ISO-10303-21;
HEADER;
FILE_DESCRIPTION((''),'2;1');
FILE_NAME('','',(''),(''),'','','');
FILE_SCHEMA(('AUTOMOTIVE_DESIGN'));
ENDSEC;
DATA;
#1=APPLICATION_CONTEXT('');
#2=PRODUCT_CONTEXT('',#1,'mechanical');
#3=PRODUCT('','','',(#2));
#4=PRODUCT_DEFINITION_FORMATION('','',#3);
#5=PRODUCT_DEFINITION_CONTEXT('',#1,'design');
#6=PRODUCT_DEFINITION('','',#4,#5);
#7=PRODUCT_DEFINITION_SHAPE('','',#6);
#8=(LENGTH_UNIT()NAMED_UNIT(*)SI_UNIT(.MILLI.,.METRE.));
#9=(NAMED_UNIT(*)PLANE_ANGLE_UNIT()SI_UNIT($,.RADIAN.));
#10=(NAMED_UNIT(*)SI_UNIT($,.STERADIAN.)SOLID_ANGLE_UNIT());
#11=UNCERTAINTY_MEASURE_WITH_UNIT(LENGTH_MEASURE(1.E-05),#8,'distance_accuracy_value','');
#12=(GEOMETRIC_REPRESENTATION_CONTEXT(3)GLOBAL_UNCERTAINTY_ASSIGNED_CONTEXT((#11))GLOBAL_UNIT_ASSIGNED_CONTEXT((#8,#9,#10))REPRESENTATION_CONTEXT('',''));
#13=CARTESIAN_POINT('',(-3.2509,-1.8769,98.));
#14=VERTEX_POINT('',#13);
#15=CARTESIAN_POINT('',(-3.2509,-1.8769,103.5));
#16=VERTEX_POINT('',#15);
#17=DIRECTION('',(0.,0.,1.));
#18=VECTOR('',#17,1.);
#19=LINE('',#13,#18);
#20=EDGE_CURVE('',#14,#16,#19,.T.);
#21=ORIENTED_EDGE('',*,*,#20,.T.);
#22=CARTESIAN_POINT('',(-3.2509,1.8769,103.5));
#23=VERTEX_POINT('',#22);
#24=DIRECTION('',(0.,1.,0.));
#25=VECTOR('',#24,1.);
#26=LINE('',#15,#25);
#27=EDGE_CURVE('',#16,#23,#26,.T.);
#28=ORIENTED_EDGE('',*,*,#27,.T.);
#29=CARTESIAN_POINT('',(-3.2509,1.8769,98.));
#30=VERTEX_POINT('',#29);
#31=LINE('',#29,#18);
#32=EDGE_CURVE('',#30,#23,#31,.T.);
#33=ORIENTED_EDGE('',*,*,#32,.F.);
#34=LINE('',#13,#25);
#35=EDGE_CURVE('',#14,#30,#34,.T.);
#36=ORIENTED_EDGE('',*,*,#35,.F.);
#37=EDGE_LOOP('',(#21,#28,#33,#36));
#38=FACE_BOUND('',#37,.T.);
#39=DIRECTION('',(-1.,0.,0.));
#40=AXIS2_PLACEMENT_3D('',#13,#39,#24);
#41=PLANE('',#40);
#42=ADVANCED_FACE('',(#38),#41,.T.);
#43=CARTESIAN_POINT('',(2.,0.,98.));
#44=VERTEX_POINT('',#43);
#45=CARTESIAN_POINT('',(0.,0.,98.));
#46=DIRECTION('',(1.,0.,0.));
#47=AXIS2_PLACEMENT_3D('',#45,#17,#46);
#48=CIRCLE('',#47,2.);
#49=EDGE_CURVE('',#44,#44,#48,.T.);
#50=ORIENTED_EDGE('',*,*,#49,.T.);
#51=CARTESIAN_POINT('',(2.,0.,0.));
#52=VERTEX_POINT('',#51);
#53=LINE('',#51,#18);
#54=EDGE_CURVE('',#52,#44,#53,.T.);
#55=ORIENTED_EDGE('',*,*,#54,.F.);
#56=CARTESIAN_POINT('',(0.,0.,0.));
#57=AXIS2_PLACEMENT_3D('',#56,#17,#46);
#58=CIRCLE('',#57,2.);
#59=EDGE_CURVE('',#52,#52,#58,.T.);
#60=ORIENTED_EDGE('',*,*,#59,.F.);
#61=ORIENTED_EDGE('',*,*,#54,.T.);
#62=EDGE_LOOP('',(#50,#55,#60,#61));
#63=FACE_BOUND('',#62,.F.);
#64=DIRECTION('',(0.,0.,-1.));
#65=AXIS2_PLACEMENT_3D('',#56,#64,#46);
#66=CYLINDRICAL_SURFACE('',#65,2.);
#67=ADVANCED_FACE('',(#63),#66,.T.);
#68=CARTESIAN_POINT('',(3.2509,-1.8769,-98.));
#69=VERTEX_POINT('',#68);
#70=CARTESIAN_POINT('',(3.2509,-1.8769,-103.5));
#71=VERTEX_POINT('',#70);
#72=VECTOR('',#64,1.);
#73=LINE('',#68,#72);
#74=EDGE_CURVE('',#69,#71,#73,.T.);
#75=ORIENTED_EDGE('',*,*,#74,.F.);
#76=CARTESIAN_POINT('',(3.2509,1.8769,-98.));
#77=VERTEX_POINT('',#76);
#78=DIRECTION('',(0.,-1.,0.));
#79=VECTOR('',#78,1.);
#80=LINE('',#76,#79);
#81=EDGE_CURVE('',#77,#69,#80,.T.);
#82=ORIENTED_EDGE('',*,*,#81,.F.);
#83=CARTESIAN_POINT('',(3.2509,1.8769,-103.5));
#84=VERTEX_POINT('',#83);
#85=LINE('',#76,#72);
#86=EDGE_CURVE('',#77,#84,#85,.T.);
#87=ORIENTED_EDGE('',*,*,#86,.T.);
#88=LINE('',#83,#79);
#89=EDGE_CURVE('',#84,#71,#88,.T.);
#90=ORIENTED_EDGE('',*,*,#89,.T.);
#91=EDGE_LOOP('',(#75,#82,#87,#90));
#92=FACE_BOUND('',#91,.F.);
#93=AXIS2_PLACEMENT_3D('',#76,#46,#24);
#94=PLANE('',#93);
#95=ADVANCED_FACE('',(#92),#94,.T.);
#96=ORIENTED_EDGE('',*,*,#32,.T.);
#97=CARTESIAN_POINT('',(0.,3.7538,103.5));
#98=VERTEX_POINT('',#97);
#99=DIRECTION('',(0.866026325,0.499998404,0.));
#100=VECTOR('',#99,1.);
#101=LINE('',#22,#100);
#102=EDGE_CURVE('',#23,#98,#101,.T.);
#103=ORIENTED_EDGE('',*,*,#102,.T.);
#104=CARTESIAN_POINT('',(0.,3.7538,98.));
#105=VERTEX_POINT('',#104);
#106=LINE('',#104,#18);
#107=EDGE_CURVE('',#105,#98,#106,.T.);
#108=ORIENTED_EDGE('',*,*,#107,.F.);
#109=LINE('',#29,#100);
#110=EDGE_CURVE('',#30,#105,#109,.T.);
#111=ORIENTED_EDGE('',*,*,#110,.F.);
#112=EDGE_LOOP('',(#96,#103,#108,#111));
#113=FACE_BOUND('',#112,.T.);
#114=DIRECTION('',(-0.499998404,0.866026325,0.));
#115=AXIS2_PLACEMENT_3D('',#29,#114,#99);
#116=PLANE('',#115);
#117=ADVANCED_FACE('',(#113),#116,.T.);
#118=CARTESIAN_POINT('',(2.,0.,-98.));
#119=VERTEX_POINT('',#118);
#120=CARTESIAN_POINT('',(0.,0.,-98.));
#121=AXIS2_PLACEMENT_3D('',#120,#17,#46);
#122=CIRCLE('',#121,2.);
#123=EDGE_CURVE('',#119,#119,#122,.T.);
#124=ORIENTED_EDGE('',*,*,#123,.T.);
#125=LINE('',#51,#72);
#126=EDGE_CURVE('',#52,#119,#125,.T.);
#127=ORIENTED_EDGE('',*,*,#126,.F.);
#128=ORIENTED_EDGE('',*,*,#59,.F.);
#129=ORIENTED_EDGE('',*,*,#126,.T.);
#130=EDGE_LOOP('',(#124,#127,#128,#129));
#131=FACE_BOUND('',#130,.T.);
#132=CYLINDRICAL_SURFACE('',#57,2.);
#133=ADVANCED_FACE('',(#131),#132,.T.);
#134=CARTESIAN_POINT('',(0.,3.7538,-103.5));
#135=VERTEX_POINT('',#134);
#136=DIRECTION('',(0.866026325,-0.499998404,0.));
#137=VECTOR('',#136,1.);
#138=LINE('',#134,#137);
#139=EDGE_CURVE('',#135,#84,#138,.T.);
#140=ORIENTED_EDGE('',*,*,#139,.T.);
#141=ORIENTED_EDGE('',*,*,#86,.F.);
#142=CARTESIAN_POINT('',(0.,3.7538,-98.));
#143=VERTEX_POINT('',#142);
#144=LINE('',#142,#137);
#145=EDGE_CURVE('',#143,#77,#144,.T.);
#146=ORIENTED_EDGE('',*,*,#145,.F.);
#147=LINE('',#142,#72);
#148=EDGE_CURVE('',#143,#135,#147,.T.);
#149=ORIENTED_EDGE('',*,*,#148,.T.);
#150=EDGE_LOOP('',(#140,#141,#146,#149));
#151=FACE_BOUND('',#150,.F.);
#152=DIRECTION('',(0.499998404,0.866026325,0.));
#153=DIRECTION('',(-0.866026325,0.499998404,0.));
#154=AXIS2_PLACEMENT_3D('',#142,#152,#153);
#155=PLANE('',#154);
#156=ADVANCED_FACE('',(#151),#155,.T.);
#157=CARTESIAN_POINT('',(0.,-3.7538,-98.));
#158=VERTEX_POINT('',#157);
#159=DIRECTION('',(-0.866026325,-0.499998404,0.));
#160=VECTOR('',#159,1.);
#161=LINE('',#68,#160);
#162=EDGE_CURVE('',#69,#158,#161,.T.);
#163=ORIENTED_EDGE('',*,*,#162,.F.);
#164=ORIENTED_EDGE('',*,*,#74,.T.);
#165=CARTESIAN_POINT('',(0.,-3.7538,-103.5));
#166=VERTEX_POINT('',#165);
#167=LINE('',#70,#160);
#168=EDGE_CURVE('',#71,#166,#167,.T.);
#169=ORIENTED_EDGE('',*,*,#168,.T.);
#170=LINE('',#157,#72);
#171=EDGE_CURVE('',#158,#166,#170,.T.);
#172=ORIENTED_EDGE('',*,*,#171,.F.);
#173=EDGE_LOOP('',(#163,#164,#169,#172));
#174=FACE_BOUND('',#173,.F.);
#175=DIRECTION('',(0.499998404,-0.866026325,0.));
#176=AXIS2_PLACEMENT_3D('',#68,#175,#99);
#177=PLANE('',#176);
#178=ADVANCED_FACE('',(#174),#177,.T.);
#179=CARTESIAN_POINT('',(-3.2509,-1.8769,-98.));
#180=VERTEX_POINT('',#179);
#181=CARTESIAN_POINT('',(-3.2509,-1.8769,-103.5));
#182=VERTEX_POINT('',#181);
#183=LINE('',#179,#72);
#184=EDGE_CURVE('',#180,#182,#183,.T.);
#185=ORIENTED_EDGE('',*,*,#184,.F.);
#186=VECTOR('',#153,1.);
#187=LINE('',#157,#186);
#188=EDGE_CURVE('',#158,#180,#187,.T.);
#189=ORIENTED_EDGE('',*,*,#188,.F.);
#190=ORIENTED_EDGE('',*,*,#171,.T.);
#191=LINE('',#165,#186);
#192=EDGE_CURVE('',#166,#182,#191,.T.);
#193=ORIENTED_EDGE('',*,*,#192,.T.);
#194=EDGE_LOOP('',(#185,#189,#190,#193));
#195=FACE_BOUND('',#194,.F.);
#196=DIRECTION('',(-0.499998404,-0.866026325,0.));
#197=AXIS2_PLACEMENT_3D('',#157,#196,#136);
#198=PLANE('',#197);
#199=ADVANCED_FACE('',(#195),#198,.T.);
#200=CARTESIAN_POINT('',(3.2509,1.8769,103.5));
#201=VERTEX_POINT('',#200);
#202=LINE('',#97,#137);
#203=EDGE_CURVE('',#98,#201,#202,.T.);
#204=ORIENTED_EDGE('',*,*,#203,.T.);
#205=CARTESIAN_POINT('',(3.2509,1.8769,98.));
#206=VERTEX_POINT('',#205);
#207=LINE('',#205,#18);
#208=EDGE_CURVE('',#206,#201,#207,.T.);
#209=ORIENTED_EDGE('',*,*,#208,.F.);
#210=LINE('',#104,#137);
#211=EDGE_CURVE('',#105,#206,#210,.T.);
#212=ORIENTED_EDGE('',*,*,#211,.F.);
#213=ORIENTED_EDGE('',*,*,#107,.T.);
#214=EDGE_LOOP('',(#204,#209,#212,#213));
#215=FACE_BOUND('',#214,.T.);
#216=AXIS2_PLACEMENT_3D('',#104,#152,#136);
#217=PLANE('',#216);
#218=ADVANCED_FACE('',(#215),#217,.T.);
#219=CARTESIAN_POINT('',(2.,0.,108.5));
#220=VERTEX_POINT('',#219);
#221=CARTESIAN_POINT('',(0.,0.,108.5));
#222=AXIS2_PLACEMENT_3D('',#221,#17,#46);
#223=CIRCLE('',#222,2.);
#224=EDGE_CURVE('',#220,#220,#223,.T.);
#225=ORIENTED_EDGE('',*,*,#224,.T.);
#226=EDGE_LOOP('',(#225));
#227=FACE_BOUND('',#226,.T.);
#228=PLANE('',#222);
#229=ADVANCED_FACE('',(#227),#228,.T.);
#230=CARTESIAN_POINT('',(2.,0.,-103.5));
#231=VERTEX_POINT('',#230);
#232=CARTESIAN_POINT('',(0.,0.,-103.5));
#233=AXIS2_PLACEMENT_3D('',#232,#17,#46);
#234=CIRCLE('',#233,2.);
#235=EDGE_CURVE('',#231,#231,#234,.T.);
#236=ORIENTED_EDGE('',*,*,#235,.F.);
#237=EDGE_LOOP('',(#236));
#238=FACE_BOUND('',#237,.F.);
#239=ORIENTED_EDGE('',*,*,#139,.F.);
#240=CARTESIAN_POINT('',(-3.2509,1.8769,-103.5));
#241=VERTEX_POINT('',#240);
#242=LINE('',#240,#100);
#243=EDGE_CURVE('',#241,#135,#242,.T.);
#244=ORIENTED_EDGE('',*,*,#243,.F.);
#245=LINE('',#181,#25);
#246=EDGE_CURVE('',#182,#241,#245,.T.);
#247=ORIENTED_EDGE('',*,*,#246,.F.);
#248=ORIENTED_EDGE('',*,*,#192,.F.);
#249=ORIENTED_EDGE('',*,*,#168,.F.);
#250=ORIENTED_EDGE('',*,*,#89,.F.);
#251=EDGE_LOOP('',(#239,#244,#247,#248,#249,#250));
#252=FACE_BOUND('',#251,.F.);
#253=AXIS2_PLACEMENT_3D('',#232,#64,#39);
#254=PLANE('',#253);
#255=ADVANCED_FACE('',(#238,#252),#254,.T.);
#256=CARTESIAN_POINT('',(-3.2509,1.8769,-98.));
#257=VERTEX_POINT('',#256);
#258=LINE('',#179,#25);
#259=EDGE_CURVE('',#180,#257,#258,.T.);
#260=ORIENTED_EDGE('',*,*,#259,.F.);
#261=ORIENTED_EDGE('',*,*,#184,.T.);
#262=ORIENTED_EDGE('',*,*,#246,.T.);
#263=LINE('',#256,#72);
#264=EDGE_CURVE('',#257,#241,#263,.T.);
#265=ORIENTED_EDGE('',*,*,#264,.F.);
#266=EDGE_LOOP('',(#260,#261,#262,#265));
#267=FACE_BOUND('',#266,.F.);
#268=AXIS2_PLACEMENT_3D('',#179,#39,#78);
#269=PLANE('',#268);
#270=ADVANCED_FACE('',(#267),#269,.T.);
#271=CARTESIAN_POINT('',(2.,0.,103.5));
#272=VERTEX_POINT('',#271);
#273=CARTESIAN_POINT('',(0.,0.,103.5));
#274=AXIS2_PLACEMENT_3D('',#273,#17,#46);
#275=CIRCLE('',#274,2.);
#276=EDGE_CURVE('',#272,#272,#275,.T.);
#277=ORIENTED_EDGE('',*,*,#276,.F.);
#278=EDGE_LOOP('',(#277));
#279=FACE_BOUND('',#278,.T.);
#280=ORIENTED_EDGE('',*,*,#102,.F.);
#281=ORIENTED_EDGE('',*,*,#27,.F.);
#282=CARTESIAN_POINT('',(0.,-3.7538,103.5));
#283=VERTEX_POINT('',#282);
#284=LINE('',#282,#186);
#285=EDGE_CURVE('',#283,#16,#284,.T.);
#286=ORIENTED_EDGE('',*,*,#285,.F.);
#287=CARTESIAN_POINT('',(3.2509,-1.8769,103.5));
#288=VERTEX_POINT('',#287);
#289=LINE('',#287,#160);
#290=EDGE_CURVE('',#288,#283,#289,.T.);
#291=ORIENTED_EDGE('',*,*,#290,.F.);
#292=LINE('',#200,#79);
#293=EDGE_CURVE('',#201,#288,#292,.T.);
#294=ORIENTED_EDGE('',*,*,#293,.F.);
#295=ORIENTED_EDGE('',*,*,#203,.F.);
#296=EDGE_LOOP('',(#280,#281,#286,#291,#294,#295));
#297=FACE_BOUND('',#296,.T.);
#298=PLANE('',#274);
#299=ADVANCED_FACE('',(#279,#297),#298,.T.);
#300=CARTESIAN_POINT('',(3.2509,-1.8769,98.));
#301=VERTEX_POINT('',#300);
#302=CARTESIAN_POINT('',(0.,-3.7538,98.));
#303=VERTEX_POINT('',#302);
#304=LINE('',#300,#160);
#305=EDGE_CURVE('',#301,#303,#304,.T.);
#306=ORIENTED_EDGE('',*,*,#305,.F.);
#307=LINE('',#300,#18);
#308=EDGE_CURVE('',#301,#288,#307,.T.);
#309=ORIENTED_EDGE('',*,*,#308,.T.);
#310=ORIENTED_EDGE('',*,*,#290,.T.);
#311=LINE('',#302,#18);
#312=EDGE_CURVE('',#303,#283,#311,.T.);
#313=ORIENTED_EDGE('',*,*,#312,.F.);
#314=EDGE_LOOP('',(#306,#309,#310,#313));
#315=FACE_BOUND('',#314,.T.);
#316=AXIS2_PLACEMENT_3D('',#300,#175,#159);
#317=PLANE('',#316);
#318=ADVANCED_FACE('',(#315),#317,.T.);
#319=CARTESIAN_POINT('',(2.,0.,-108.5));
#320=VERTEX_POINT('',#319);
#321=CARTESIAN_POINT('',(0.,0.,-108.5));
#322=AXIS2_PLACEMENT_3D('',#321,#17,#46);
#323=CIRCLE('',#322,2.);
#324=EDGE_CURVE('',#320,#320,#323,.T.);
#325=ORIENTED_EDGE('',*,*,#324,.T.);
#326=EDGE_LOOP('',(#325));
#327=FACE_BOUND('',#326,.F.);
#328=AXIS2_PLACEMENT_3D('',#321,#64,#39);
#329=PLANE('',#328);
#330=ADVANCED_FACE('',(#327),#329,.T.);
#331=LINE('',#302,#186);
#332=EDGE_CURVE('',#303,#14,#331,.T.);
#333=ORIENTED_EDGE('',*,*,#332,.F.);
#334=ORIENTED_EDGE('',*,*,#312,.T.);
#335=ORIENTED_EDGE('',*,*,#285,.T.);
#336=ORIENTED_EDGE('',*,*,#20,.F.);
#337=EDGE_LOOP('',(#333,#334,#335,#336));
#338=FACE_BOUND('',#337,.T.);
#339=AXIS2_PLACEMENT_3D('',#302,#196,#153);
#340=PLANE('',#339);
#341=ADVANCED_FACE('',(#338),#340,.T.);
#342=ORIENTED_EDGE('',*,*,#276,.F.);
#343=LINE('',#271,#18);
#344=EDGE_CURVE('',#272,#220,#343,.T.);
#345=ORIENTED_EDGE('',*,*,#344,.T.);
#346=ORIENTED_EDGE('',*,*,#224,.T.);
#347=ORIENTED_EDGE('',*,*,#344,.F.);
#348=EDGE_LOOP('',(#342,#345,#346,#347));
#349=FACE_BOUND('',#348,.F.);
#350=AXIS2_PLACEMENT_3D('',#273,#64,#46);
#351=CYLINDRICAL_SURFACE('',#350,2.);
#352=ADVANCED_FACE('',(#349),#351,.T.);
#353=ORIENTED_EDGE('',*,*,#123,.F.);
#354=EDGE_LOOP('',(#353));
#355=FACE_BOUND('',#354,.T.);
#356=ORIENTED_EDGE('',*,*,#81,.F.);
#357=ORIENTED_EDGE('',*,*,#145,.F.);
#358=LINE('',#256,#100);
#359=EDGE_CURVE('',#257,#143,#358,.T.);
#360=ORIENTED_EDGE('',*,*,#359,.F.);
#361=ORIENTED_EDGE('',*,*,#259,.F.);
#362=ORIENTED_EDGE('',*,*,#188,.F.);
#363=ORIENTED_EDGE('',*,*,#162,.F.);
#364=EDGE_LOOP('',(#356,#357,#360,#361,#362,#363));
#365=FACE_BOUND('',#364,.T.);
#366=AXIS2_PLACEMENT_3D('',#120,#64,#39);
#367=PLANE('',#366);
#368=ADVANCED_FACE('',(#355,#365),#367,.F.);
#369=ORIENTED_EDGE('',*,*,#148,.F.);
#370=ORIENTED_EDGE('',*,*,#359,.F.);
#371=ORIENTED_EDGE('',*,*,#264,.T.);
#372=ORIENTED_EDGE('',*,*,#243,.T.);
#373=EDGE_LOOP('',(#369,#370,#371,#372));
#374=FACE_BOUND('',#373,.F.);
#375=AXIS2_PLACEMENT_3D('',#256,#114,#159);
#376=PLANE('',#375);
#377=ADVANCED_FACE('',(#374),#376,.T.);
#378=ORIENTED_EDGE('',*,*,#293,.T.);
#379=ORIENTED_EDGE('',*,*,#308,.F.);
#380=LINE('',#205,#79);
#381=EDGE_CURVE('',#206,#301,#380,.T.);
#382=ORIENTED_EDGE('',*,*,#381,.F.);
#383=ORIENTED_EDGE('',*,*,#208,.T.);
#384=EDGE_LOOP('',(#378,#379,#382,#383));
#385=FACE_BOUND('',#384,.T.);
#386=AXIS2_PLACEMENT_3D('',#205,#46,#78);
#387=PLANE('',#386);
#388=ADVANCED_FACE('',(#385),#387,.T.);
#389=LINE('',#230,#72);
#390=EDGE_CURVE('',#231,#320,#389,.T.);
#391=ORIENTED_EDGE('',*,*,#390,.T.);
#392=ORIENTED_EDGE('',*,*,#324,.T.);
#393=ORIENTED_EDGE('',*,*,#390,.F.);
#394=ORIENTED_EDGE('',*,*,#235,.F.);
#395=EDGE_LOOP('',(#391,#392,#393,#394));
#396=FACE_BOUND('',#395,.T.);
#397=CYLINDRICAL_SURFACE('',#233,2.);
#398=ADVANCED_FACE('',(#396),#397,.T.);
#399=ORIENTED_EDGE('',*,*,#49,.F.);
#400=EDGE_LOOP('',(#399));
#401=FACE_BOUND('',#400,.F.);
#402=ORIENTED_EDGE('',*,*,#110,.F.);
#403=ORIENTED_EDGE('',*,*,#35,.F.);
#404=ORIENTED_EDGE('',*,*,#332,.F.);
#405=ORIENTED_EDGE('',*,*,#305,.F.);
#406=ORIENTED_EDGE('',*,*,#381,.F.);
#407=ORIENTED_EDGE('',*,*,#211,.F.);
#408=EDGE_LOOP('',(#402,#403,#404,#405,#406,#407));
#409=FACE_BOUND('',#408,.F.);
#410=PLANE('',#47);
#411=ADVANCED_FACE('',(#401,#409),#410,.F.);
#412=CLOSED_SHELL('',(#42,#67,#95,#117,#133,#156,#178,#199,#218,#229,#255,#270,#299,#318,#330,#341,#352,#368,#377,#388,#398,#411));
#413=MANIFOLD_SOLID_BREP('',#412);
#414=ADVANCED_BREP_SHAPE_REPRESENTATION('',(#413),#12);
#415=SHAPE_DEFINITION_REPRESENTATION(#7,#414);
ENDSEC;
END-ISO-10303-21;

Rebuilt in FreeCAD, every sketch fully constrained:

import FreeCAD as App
import Part
import Sketcher
Q = App.Units.Quantity

doc = App.newDocument("Part")
body = doc.addObject("PartDesign::Body", "Body")

sketch1 = body.newObject("Sketcher::SketchObject", "Sketch")
sketch1.AttachmentSupport = (doc.getObject("XY_Plane"), [""])
sketch1.MapMode = "FlatFace"
sketch1.addGeometry(Part.Circle(App.Vector(0, 0, 0), App.Vector(0, 0, 1), 2), False)
sketch1.addConstraint(Sketcher.Constraint("Coincident", 0, 3, -1, 1))
sketch1.addConstraint(Sketcher.Constraint("Diameter", 0, Q("4 mm")))
pad1 = body.newObject("PartDesign::Pad", "Pad")
pad1.Profile = sketch1
pad1.Length = 98

sketch2 = body.newObject("Sketcher::SketchObject", "Sketch001")
sketch2.AttachmentSupport = (doc.getObject("XY_Plane"), [""])
sketch2.MapMode = "FlatFace"
sketch2.AttachmentOffset = App.Placement(App.Vector(0, 0, 98), App.Rotation())
sketch2.addGeometry(Part.LineSegment(App.Vector(3.3, 1.9, 0), App.Vector(0, 3.8, 0)), False)
sketch2.addGeometry(Part.LineSegment(App.Vector(0, 3.8, 0), App.Vector(-3.3, 1.9, 0)), False)
sketch2.addGeometry(Part.LineSegment(App.Vector(-3.3, 1.9, 0), App.Vector(-3.3, -1.9, 0)), False)
sketch2.addGeometry(Part.LineSegment(App.Vector(-3.3, -1.9, 0), App.Vector(0, -3.8, 0)), False)
sketch2.addGeometry(Part.LineSegment(App.Vector(0, -3.8, 0), App.Vector(3.3, -1.9, 0)), False)
sketch2.addGeometry(Part.LineSegment(App.Vector(3.3, -1.9, 0), App.Vector(3.3, 1.9, 0)), False)
sketch2.addConstraint(Sketcher.Constraint("Coincident", 0, 2, 1, 1))
sketch2.addConstraint(Sketcher.Constraint("Coincident", 1, 2, 2, 1))
sketch2.addConstraint(Sketcher.Constraint("Coincident", 2, 2, 3, 1))
sketch2.addConstraint(Sketcher.Constraint("Coincident", 3, 2, 4, 1))
sketch2.addConstraint(Sketcher.Constraint("Coincident", 4, 2, 5, 1))
sketch2.addConstraint(Sketcher.Constraint("Coincident", 5, 2, 0, 1))
sketch2.addConstraint(Sketcher.Constraint("Vertical", 2))
sketch2.addConstraint(Sketcher.Constraint("Vertical", 5))
sketch2.addConstraint(Sketcher.Constraint("Symmetric", 0, 2, 3, 2, -1, 1))
sketch2.addConstraint(Sketcher.Constraint("Symmetric", 1, 2, 4, 2, -1, 1))
sketch2.addConstraint(Sketcher.Constraint("PointOnObject", 0, 2, -2))
sketch2.addConstraint(Sketcher.Constraint("Parallel", 0, 3))
sketch2.addConstraint(Sketcher.Constraint("Horizontal", 2, 2, 4, 2))
sketch2.addConstraint(Sketcher.Constraint("Angle", 0, Q("150 deg")))
sketch2.addConstraint(Sketcher.Constraint("DistanceY", 2, 2, 2, 1, Q("3.7538 mm")))
sketch2.addConstraint(Sketcher.Constraint("DistanceX", 1, 2, -1, 1, Q("3.251 mm")))
pad2 = body.newObject("PartDesign::Pad", "Pad001")
pad2.Profile = sketch2
pad2.Length = 5.5

sketch3 = body.newObject("Sketcher::SketchObject", "Sketch002")
sketch3.AttachmentSupport = (doc.getObject("XY_Plane"), [""])
sketch3.MapMode = "FlatFace"
sketch3.AttachmentOffset = App.Placement(App.Vector(0, 0, 103.5), App.Rotation())
sketch3.addGeometry(Part.Circle(App.Vector(0, 0, 0), App.Vector(0, 0, 1), 2), False)
sketch3.addConstraint(Sketcher.Constraint("Coincident", 0, 3, -1, 1))
sketch3.addConstraint(Sketcher.Constraint("Diameter", 0, Q("4 mm")))
pad3 = body.newObject("PartDesign::Pad", "Pad002")
pad3.Profile = sketch3
pad3.Length = 5
doc.recompute()

mirrored = body.newObject("PartDesign::Mirrored", "Mirrored")
mirrored.TransformMode = "Transform body"
mirrored.MirrorPlane = (doc.getObject("XY_Plane"), [""])
body.Tip = mirrored

doc.recompute()
